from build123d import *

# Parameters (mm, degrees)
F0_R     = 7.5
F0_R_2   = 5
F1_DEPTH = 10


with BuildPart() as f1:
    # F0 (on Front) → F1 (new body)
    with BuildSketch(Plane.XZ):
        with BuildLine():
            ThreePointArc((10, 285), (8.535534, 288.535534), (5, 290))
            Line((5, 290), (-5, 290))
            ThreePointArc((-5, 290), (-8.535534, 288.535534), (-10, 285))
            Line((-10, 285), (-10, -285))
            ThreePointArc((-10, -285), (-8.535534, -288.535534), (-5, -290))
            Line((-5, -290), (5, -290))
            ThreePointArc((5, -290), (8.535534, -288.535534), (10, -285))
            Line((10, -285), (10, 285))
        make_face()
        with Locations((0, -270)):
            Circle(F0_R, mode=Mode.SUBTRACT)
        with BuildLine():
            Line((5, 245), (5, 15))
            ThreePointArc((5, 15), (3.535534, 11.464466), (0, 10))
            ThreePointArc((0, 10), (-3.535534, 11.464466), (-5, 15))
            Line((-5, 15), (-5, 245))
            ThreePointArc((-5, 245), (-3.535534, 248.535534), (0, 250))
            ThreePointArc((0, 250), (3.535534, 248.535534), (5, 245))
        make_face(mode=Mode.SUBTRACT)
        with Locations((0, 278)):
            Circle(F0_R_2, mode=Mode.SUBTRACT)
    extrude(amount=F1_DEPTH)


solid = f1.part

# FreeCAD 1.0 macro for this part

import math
import FreeCAD as App
import Part
import Sketcher
from FreeCAD import Vector
Q = App.Units.Quantity

doc = App.newDocument("Part")
params = doc.addObject("Spreadsheet::Sheet", "Params")
for row, (alias, value) in enumerate([
    ("sketch1_diameter", "15 mm"),
    ("sketch1_diameter2", "10 mm"),
    ("sketch1_height", "570 mm"),
    ("sketch1_height2", "230 mm"),
    ("pad1_length", "10 mm"),
], start=1):
    params.set(f"A{row}", alias)
    params.set(f"B{row}", "=" + value)
    params.setAlias(f"B{row}", alias)

body = doc.addObject("PartDesign::Body", "Body")

# Sketch on XZ plane
sketch1 = body.newObject("Sketcher::SketchObject", "Sketch")
sketch1.AttachmentSupport = (doc.getObject("XZ_Plane"), [""])
sketch1.MapMode = "FlatFace"
sketch1.addGeometry(Part.ArcOfCircle(Part.Circle(Vector(5, 285, 0), Vector(0, 0, 1), 5), math.radians(-0.000004), math.radians(90.000004)), False)
sketch1.addGeometry(Part.LineSegment(Vector(5, 290, 0), Vector(-5, 290, 0)), False)
sketch1.addGeometry(Part.ArcOfCircle(Part.Circle(Vector(-5, 285, 0), Vector(0, 0, 1), 5), math.radians(89.999996), math.radians(180.000004)), False)
sketch1.addGeometry(Part.LineSegment(Vector(-10, 285, 0), Vector(-10, -285, 0)), False)
sketch1.addGeometry(Part.ArcOfCircle(Part.Circle(Vector(-5, -285, 0), Vector(0, 0, 1), 5), math.radians(179.999996), math.radians(270.000004)), False)
sketch1.addGeometry(Part.LineSegment(Vector(-5, -290, 0), Vector(5, -290, 0)), False)
sketch1.addGeometry(Part.ArcOfCircle(Part.Circle(Vector(5, -285, 0), Vector(0, 0, 1), 5), math.radians(-90.000004), math.radians(0.000004)), False)
sketch1.addGeometry(Part.LineSegment(Vector(10, -285, 0), Vector(10, 285, 0)), False)
sketch1.addGeometry(Part.Circle(Vector(0, -270, 0), Vector(0, 0, 1), 7.5), False)
sketch1.addGeometry(Part.ArcOfCircle(Part.Circle(Vector(0, 245, 0), Vector(0, 0, 1), 5), math.radians(-0.000004), math.radians(90.000004)), False)
sketch1.addGeometry(Part.LineSegment(Vector(5, 245, 0), Vector(5, 15, 0)), False)
sketch1.addGeometry(Part.ArcOfCircle(Part.Circle(Vector(0, 15, 0), Vector(0, 0, 1), 5), math.radians(-90.000004), math.radians(0.000004)), False)
sketch1.addGeometry(Part.ArcOfCircle(Part.Circle(Vector(0, 15, 0), Vector(0, 0, 1), 5), math.radians(179.999996), math.radians(270.000004)), False)
sketch1.addGeometry(Part.LineSegment(Vector(-5, 15, 0), Vector(-5, 245, 0)), False)
sketch1.addGeometry(Part.ArcOfCircle(Part.Circle(Vector(0, 245, 0), Vector(0, 0, 1), 5), math.radians(89.999996), math.radians(180.000004)), False)
sketch1.addGeometry(Part.Circle(Vector(0, 278, 0), Vector(0, 0, 1), 5), False)
sketch1.addConstraint(Sketcher.Constraint("Tangent", 0, 2, 1, 1))
sketch1.addConstraint(Sketcher.Constraint("Tangent", 1, 2, 2, 1))
sketch1.addConstraint(Sketcher.Constraint("Tangent", 2, 2, 3, 1))
sketch1.addConstraint(Sketcher.Constraint("Tangent", 3, 2, 4, 1))
sketch1.addConstraint(Sketcher.Constraint("Tangent", 4, 2, 5, 1))
sketch1.addConstraint(Sketcher.Constraint("Tangent", 5, 2, 6, 1))
sketch1.addConstraint(Sketcher.Constraint("Tangent", 6, 2, 7, 1))
sketch1.addConstraint(Sketcher.Constraint("Tangent", 7, 2, 0, 1))
sketch1.addConstraint(Sketcher.Constraint("Tangent", 9, 1, 10, 1))
sketch1.addConstraint(Sketcher.Constraint("Tangent", 10, 2, 11, 2))
sketch1.addConstraint(Sketcher.Constraint("Tangent", 11, 1, 12, 2))
sketch1.addConstraint(Sketcher.Constraint("Tangent", 12, 1, 13, 1))
sketch1.addConstraint(Sketcher.Constraint("Tangent", 13, 2, 14, 2))
sketch1.addConstraint(Sketcher.Constraint("Tangent", 14, 1, 9, 2))
sketch1.addConstraint(Sketcher.Constraint("Horizontal", 1))
sketch1.addConstraint(Sketcher.Constraint("Vertical", 3))
sketch1.addConstraint(Sketcher.Constraint("Horizontal", 5))
sketch1.addConstraint(Sketcher.Constraint("Vertical", 7))
sketch1.addConstraint(Sketcher.Constraint("Vertical", 10))
sketch1.addConstraint(Sketcher.Constraint("Vertical", 13))
sketch1.addConstraint(Sketcher.Constraint("Equal", 0, 2))
sketch1.addConstraint(Sketcher.Constraint("Equal", 2, 4))
sketch1.addConstraint(Sketcher.Constraint("Equal", 4, 6))
sketch1.addConstraint(Sketcher.Constraint("Equal", 6, 9))
sketch1.addConstraint(Sketcher.Constraint("Equal", 9, 11))
sketch1.addConstraint(Sketcher.Constraint("Equal", 11, 12))
sketch1.addConstraint(Sketcher.Constraint("Equal", 14, 15))
sketch1.addConstraint(Sketcher.Constraint("Symmetric", 0, 3, 4, 3, -1, 1))
sketch1.addConstraint(Sketcher.Constraint("PointOnObject", 8, 3, -2))
sketch1.addConstraint(Sketcher.Constraint("PointOnObject", 9, 3, -2))
sketch1.addConstraint(Sketcher.Constraint("PointOnObject", 15, 3, -2))
sketch1.addConstraint(Sketcher.Constraint("PointOnObject", 11, 1, -2))
sketch1.addConstraint(Sketcher.Constraint("PointOnObject", 14, 1, -2))
sketch1.addConstraint(Sketcher.Constraint("Vertical", 5, 2, 9, 1))
sketch1.addConstraint(Sketcher.Constraint("Diameter", 8, Q("15 mm")))
sketch1.addConstraint(Sketcher.Constraint("Diameter", 15, Q("10 mm")))
sketch1.addConstraint(Sketcher.Constraint("DistanceY", 3, 2, 3, 1, Q("570 mm")))
sketch1.addConstraint(Sketcher.Constraint("DistanceY", 10, 2, 10, 1, Q("230 mm")))
sketch1.addConstraint(Sketcher.Constraint("DistanceY", 8, 3, -1, 1, Q("270 mm")))
sketch1.addConstraint(Sketcher.Constraint("DistanceY", -1, 1, 9, 3, Q("245 mm")))
sketch1.addConstraint(Sketcher.Constraint("DistanceY", -1, 1, 15, 3, Q("278 mm")))
sketch1.setExpression("Constraints[34]", "Params.sketch1_diameter")
sketch1.setExpression("Constraints[35]", "Params.sketch1_diameter2")
sketch1.setExpression("Constraints[36]", "Params.sketch1_height")
sketch1.setExpression("Constraints[37]", "Params.sketch1_height2")
pad1 = body.newObject("PartDesign::Pad", "Pad")
pad1.Profile = sketch1
pad1.setExpression("Length", "Params.pad1_length")

doc.recompute()
